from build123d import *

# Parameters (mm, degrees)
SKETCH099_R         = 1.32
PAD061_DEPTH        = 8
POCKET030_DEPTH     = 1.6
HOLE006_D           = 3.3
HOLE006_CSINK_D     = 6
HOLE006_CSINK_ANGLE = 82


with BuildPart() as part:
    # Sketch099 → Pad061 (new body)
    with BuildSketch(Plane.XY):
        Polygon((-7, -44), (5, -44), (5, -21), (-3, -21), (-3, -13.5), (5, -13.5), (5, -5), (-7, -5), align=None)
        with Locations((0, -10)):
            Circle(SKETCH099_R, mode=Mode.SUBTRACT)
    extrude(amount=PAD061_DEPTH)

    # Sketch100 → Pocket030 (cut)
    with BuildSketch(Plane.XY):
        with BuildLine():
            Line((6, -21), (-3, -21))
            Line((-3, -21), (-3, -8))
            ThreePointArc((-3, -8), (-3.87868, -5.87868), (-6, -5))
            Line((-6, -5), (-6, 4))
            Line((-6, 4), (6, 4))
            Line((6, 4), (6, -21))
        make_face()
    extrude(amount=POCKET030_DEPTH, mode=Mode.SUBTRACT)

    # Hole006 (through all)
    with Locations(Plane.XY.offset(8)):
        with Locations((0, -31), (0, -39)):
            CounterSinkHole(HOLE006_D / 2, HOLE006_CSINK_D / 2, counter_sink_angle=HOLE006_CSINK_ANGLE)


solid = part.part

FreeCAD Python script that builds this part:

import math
import FreeCAD as App
import Part
import Sketcher
from FreeCAD import Vector
Q = App.Units.Quantity


def add_polygon(sketch, points):
    """Adds a closed chain of lines whose ends are joined by coincident constraints."""
    first, n = sketch.GeometryCount, len(points)
    for a, b in zip(points, points[1:] + points[:1]):
        sketch.addGeometry(Part.LineSegment(App.Vector(*a, 0), App.Vector(*b, 0)), False)
    for i in range(n):
        sketch.addConstraint(Sketcher.Constraint("Coincident", first + i, 2, first + (i + 1) % n, 1))

doc = App.newDocument("Part")
params = doc.addObject("Spreadsheet::Sheet", "Params")
for row, (alias, value) in enumerate([
    ("sketch1_diameter", "2.64 mm"),
    ("sketch1_width", "12 mm"),
    ("sketch1_width2", "8 mm"),
    ("sketch1_height", "23 mm"),
    ("sketch1_height2", "39 mm"),
    ("pad1_length", "8 mm"),
    ("sketch2_radius", "3.000001 mm"),
    ("sketch2_width", "9 mm"),
    ("sketch2_height", "25 mm"),
    ("pocket1_length", "1.6 mm"),
    ("sketch3_diameter", "3.3 mm"),
    ("hole_diameter", "3.3 mm"),
    ("hole_csink_diameter", "6 mm"),
], start=1):
    params.set(f"A{row}", alias)
    params.set(f"B{row}", "=" + value)
    params.setAlias(f"B{row}", alias)

body = doc.addObject("PartDesign::Body", "Body")

# Sketch on XY plane
sketch1 = body.newObject("Sketcher::SketchObject", "Sketch")
sketch1.AttachmentSupport = (doc.getObject("XY_Plane"), [""])
sketch1.MapMode = "FlatFace"
add_polygon(sketch1, [(-7, -44), (5, -44), (5, -21), (-3, -21), (-3, -13.5), (5, -13.5), (5, -5), (-7, -5)])  # lines 0-7
sketch1.addGeometry(Part.Circle(Vector(0, -10, 0), Vector(0, 0, 1), 1.3), False)  # 8
sketch1.addConstraint(Sketcher.Constraint("Horizontal", 0))
sketch1.addConstraint(Sketcher.Constraint("Vertical", 1))
sketch1.addConstraint(Sketcher.Constraint("Horizontal", 2))
sketch1.addConstraint(Sketcher.Constraint("Vertical", 3))
sketch1.addConstraint(Sketcher.Constraint("Horizontal", 4))
sketch1.addConstraint(Sketcher.Constraint("Vertical", 5))
sketch1.addConstraint(Sketcher.Constraint("Horizontal", 6))
sketch1.addConstraint(Sketcher.Constraint("Vertical", 7))
sketch1.addConstraint(Sketcher.Constraint("PointOnObject", 8, 3, -2))
sketch1.addConstraint(Sketcher.Constraint("Vertical", 1, 2, 4, 2))
sketch1.addConstraint(Sketcher.Constraint("Diameter", 8, Q("2.64 mm")))
sketch1.addConstraint(Sketcher.Constraint("DistanceX", 0, 1, 0, 2, Q("12 mm")))
sketch1.addConstraint(Sketcher.Constraint("DistanceX", 2, 2, 2, 1, Q("8 mm")))
sketch1.addConstraint(Sketcher.Constraint("DistanceY", 1, 1, 1, 2, Q("23 mm")))
sketch1.addConstraint(Sketcher.Constraint("DistanceY", 7, 2, 7, 1, Q("39 mm")))
sketch1.addConstraint(Sketcher.Constraint("DistanceY", 3, 1, 3, 2, Q("7.5 mm")))
sketch1.addConstraint(Sketcher.Constraint("DistanceY", 8, 3, -1, 1, Q("10 mm")))
sketch1.addConstraint(Sketcher.Constraint("DistanceX", -1, 1, 0, 2, Q("5 mm")))
sketch1.addConstraint(Sketcher.Constraint("DistanceY", 0, 2, -1, 1, Q("44 mm")))
sketch1.setExpression("Constraints[18]", "Params.sketch1_diameter")
sketch1.setExpression("Constraints[19]", "Params.sketch1_width")
sketch1.setExpression("Constraints[20]", "Params.sketch1_width2")
sketch1.setExpression("Constraints[21]", "Params.sketch1_height")
sketch1.setExpression("Constraints[22]", "Params.sketch1_height2")
pad1 = body.newObject("PartDesign::Pad", "Pad")
pad1.Profile = sketch1
pad1.setExpression("Length", "Params.pad1_length")

# Sketch on XY plane
sketch2 = body.newObject("Sketcher::SketchObject", "Sketch001")
sketch2.AttachmentSupport = (doc.getObject("XY_Plane"), [""])
sketch2.MapMode = "FlatFace"
sketch2.addGeometry(Part.LineSegment(Vector(-3, -21, 0), Vector(6, -21, 0)), False)
sketch2.addGeometry(Part.LineSegment(Vector(6, -21, 0), Vector(6, 4, 0)), False)
sketch2.addGeometry(Part.LineSegment(Vector(6, 4, 0), Vector(-6, 4, 0)), False)
sketch2.addGeometry(Part.LineSegment(Vector(-6, 4, 0), Vector(-6, -5, 0)), False)
sketch2.addGeometry(Part.ArcOfCircle(Part.Circle(Vector(-6, -8, 0), Vector(0, 0, 1), 3), math.radians(0), math.radians(90)), False)
sketch2.addGeometry(Part.LineSegment(Vector(-3, -8, 0), Vector(-3, -21, 0)), False)
sketch2.addConstraint(Sketcher.Constraint("Coincident", 0, 2, 1, 1))
sketch2.addConstraint(Sketcher.Constraint("Coincident", 1, 2, 2, 1))
sketch2.addConstraint(Sketcher.Constraint("Coincident", 2, 2, 3, 1))
sketch2.addConstraint(Sketcher.Constraint("Coincident", 3, 2, 4, 2))
sketch2.addConstraint(Sketcher.Constraint("Tangent", 4, 1, 5, 1))
sketch2.addConstraint(Sketcher.Constraint("Coincident", 5, 2, 0, 1))
sketch2.addConstraint(Sketcher.Constraint("Horizontal", 0))
sketch2.addConstraint(Sketcher.Constraint("Vertical", 1))
sketch2.addConstraint(Sketcher.Constraint("Horizontal", 2))
sketch2.addConstraint(Sketcher.Constraint("Vertical", 3))
sketch2.addConstraint(Sketcher.Constraint("Vertical", 5))
sketch2.addConstraint(Sketcher.Constraint("Vertical", 4, 3, 2, 2))
sketch2.addConstraint(Sketcher.Constraint("Equal", 0, 3))
sketch2.addConstraint(Sketcher.Constraint("Radius", 4, Q("3.000001 mm")))
sketch2.addConstraint(Sketcher.Constraint("DistanceX", 0, 1, 0, 2, Q("9 mm")))
sketch2.addConstraint(Sketcher.Constraint("DistanceY", 1, 1, 1, 2, Q("25 mm")))
sketch2.addConstraint(Sketcher.Constraint("DistanceX", 4, 3, -1, 1, Q("6.000001 mm")))
sketch2.addConstraint(Sketcher.Constraint("DistanceY", 4, 3, -1, 1, Q("8.000001 mm")))
sketch2.setExpression("Constraints[13]", "Params.sketch2_radius")
sketch2.setExpression("Constraints[14]", "Params.sketch2_width")
sketch2.setExpression("Constraints[15]", "Params.sketch2_height")
pocket1 = body.newObject("PartDesign::Pocket", "Pocket")
pocket1.Profile = sketch2
pocket1.setExpression("Length", "Params.pocket1_length")
pocket1.Reversed = True

# Sketch on XY plane
sketch3 = body.newObject("Sketcher::SketchObject", "Sketch002")
sketch3.AttachmentSupport = (doc.getObject("XY_Plane"), [""])
sketch3.MapMode = "FlatFace"
sketch3.AttachmentOffset = App.Placement(Vector(0, 0, 8), App.Rotation())
sketch3.addGeometry(Part.Circle(Vector(0, -31, 0), Vector(0, 0, 1), 1.6), False)
sketch3.addGeometry(Part.Circle(Vector(0, -39, 0), Vector(0, 0, 1), 1.6), False)
sketch3.addConstraint(Sketcher.Constraint("Equal", 0, 1))
sketch3.addConstraint(Sketcher.Constraint("PointOnObject", 0, 3, -2))
sketch3.addConstraint(Sketcher.Constraint("PointOnObject", 1, 3, -2))
sketch3.addConstraint(Sketcher.Constraint("Diameter", 0, Q("3.3 mm")))
sketch3.addConstraint(Sketcher.Constraint("DistanceY", 0, 3, -1, 1, Q("31 mm")))
sketch3.addConstraint(Sketcher.Constraint("DistanceY", 1, 3, -1, 1, Q("39 mm")))
sketch3.setExpression("Constraints[3]", "Params.sketch3_diameter")
doc.recompute()
hole = body.newObject("PartDesign::Hole", "Hole")
hole.Profile = sketch3
hole.ThreadType = "None"
hole.setExpression("Diameter", "Params.hole_diameter")
hole.DepthType = "ThroughAll"
hole.HoleCutType = "Countersink"
hole.setExpression("HoleCutDiameter", "Params.hole_csink_diameter")
hole.HoleCutCountersinkAngle = 82

doc.recompute()
